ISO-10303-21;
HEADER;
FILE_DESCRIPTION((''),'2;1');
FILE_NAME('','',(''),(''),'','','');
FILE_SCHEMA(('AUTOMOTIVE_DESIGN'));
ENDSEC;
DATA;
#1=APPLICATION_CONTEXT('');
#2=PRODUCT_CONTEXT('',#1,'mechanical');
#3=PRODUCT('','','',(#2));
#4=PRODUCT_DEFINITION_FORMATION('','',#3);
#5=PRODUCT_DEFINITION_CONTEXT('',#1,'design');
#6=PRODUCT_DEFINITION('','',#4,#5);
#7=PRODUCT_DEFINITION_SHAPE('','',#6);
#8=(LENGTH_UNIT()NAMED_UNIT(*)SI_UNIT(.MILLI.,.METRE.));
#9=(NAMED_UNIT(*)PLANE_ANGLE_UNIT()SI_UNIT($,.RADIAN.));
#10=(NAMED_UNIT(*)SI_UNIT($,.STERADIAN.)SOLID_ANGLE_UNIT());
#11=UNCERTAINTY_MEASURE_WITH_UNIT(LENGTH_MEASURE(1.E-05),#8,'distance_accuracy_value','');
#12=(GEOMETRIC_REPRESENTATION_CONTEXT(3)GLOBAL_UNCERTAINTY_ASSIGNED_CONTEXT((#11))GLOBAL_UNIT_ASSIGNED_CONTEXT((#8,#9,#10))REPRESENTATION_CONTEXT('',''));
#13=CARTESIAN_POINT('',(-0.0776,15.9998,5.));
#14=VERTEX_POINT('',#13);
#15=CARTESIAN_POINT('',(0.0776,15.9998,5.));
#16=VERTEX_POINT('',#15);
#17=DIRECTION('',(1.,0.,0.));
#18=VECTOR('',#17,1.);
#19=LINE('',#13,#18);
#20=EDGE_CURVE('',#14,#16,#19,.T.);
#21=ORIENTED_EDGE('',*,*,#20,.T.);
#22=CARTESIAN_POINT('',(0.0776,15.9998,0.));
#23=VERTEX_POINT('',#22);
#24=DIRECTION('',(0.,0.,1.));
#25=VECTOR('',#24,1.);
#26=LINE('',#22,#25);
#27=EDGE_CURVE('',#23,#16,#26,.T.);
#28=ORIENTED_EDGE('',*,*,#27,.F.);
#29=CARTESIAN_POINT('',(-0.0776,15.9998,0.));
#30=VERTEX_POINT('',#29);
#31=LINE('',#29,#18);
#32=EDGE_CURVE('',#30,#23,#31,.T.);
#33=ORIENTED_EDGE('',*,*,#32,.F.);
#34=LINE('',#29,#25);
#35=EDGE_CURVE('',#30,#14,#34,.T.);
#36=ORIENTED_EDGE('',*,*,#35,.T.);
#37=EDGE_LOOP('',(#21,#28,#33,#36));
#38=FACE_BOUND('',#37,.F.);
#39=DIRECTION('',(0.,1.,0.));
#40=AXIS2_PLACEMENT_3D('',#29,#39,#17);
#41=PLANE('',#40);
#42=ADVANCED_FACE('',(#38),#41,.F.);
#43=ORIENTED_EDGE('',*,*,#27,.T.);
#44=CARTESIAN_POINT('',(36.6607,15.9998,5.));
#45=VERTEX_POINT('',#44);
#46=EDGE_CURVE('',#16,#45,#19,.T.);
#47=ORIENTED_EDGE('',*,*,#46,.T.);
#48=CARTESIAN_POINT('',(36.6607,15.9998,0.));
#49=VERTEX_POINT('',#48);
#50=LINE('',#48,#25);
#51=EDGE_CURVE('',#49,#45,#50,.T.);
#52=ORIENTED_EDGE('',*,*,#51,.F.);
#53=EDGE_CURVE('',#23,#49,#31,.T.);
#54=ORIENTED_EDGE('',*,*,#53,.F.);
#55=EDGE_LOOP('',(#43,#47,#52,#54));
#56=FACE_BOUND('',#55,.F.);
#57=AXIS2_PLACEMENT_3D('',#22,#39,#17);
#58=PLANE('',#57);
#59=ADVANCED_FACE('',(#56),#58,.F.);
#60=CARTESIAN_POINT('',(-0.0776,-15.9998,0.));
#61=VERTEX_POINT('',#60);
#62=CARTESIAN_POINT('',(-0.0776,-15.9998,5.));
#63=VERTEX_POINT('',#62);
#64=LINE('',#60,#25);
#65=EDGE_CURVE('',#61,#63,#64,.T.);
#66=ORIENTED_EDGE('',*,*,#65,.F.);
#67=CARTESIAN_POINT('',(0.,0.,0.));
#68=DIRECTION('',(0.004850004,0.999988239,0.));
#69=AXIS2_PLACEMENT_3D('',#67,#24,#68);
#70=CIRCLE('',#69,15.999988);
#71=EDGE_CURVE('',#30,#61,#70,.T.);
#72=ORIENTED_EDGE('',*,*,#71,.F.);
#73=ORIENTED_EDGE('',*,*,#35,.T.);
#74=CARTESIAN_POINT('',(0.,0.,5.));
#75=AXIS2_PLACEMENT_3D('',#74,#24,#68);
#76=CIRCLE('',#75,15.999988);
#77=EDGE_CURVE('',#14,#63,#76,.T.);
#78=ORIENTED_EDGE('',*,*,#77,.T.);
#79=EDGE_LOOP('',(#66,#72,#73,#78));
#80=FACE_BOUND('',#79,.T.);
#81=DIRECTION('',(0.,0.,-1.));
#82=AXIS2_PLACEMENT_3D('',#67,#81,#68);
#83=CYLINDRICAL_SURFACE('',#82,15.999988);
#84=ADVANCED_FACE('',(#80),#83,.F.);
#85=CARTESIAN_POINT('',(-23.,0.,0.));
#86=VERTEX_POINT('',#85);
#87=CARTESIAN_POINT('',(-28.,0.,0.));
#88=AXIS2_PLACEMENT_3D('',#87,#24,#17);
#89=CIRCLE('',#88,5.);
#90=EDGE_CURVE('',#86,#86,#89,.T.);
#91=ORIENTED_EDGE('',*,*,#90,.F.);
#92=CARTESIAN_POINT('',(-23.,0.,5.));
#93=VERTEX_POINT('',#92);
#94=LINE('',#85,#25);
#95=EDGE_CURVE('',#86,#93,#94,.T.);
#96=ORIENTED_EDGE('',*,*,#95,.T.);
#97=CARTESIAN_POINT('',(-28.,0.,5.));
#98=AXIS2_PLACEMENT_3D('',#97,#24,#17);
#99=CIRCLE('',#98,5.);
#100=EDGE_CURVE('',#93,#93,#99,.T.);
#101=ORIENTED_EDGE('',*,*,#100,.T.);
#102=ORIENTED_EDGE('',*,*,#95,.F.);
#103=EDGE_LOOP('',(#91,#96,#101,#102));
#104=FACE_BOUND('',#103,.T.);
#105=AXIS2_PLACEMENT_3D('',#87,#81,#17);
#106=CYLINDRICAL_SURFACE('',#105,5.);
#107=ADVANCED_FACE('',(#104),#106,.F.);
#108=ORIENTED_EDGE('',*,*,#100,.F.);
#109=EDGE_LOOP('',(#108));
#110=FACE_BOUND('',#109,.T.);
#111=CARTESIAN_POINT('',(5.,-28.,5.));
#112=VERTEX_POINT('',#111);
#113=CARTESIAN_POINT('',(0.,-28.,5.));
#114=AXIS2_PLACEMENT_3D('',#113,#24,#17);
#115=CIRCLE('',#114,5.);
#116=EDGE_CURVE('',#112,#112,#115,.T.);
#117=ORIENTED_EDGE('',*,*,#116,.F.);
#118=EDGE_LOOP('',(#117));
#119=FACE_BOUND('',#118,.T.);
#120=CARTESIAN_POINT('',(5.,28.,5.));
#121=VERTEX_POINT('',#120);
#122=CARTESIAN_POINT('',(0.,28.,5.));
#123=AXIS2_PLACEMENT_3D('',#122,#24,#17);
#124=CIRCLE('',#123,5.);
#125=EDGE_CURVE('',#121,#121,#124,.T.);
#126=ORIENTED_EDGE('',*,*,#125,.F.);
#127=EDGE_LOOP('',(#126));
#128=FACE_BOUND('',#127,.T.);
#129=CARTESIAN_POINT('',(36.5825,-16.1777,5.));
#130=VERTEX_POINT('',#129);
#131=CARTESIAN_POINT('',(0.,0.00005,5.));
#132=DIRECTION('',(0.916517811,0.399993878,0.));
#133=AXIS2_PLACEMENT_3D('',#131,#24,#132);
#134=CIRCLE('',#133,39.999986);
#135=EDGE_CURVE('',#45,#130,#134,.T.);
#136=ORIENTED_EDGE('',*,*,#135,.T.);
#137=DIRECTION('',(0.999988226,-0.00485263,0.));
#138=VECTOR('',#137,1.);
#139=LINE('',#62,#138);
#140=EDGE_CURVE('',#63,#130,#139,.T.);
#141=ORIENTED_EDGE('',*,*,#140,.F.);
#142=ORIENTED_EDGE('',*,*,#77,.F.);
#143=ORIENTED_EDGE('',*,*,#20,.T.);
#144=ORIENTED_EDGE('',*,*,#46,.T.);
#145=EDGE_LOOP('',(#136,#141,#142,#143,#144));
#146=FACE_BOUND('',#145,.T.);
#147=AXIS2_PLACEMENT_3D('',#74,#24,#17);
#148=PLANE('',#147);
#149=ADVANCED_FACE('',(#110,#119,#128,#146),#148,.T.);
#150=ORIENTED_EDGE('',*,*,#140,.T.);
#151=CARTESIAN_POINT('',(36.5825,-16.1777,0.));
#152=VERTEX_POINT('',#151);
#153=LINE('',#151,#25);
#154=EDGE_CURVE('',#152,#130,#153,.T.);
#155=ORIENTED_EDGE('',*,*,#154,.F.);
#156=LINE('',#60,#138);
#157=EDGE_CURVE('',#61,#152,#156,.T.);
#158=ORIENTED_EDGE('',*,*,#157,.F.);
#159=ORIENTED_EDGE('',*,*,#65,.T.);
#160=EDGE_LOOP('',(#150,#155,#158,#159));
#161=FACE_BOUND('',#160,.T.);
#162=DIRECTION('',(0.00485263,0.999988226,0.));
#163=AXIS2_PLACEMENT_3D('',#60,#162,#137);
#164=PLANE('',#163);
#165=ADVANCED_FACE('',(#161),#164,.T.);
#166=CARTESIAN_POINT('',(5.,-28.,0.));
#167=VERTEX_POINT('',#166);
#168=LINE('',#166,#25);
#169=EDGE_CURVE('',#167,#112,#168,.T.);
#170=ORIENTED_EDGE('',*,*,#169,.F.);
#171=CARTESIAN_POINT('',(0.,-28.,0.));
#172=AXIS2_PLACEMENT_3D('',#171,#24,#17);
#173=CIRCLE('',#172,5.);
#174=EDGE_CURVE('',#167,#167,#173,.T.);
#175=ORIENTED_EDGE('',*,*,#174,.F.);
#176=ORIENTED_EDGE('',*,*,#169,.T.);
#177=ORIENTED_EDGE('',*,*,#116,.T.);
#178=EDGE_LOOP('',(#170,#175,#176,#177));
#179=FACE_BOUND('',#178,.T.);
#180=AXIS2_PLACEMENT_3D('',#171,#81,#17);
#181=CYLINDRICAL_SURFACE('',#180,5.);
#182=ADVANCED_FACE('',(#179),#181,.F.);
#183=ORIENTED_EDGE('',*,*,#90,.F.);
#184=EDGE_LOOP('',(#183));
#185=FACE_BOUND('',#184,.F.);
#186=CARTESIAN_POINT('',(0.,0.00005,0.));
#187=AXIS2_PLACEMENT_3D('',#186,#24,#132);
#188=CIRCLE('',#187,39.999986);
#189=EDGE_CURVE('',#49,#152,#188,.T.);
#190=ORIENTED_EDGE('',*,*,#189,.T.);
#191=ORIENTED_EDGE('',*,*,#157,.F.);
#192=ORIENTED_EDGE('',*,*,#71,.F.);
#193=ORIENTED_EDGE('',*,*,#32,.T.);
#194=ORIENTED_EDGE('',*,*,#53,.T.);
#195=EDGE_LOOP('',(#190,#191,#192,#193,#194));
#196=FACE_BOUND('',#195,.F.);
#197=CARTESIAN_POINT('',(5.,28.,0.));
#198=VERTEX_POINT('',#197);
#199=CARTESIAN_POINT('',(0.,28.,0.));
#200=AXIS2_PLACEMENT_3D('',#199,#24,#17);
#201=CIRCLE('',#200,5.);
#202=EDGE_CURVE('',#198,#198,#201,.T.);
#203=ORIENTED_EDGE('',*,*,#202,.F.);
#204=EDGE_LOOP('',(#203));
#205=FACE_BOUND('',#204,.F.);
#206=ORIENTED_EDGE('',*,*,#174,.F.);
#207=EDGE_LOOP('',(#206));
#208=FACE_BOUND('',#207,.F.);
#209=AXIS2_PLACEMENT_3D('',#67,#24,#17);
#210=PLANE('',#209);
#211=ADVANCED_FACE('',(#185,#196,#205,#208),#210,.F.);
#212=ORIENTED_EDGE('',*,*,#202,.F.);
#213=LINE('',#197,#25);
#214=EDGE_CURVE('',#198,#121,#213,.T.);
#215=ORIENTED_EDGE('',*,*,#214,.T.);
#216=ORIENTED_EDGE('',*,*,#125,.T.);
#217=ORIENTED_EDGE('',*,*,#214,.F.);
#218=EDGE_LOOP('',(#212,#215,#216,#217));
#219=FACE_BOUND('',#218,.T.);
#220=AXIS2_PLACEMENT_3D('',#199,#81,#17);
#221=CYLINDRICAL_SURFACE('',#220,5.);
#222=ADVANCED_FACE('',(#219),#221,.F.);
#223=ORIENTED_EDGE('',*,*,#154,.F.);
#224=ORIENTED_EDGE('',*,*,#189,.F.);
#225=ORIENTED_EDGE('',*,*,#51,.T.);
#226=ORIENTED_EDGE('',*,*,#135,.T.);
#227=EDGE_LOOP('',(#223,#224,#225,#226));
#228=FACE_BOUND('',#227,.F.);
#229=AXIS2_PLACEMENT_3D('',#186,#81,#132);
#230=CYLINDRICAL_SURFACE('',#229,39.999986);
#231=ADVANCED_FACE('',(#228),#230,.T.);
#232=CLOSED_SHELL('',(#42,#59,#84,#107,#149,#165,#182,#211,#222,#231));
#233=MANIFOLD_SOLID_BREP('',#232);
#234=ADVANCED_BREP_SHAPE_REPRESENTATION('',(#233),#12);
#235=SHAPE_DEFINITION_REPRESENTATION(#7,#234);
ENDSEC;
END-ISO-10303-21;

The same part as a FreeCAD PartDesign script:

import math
import FreeCAD as App
import Part
import Sketcher

V = App.Vector

doc = App.newDocument("Part")
body = doc.addObject("PartDesign::Body", "Body")

# Sketch on XY plane
sketch1 = body.newObject("Sketcher::SketchObject", "Sketch")
sketch1.AttachmentSupport = (doc.getObject("XY_Plane"), [""])
sketch1.MapMode = "FlatFace"
sketch1.addGeometry([
    Part.ArcOfCircle(Part.Circle(V(0, 0, 0), V(0, 0, 1), 16), math.radians(90), math.radians(270)),  # 0
    Part.LineSegment(V(0, 16, 0), V(37, 16, 0)),  # 1
    Part.ArcOfCircle(Part.Circle(V(0, 0, 0), V(0, 0, 1), 40), math.radians(24), math.radians(336)),  # 2
    Part.LineSegment(V(37, -16, 0), V(0, -16, 0)),  # 3
    Part.Circle(V(-28, 0, 0), V(0, 0, 1), 5),  # 4
    Part.Circle(V(0, -28, 0), V(0, 0, 1), 5),  # 5
    Part.Circle(V(0, 28, 0), V(0, 0, 1), 5),  # 6
], False)
sketch1.addConstraint([
    Sketcher.Constraint("Coincident", 0, 1, 1, 1),
    Sketcher.Constraint("Coincident", 1, 2, 2, 1),
    Sketcher.Constraint("Coincident", 2, 2, 3, 1),
    Sketcher.Constraint("Tangent", 3, 2, 0, 2),
    Sketcher.Constraint("Horizontal", 1),
    Sketcher.Constraint("Coincident", 0, 3, -1, 1),
    Sketcher.Constraint("Coincident", 2, 3, -1, 1),
    Sketcher.Constraint("Equal", 4, 5),
    Sketcher.Constraint("Equal", 5, 6),
    Sketcher.Constraint("Symmetric", 5, 3, 6, 3, -1, 1),
    Sketcher.Constraint("PointOnObject", 4, 3, -1),
    Sketcher.Constraint("PointOnObject", 5, 3, -2),
    Sketcher.Constraint("Vertical", 0, 1, 3, 2),
    Sketcher.Constraint("Diameter", 4, 10.0),
    Sketcher.Constraint("Radius", 2, 40.0),
    Sketcher.Constraint("DistanceX", 4, 3, -1, 1, 28.0),
    Sketcher.Constraint("DistanceY", 5, 3, -1, 1, 28.0),
    Sketcher.Constraint("Radius", 0, 16.0),
    Sketcher.Constraint("DistanceX", 1, 1, 1, 2, 36.7383),
])
pad1 = body.newObject("PartDesign::Pad", "Pad")
pad1.Profile = sketch1
pad1.Length = 5

doc.recompute()
